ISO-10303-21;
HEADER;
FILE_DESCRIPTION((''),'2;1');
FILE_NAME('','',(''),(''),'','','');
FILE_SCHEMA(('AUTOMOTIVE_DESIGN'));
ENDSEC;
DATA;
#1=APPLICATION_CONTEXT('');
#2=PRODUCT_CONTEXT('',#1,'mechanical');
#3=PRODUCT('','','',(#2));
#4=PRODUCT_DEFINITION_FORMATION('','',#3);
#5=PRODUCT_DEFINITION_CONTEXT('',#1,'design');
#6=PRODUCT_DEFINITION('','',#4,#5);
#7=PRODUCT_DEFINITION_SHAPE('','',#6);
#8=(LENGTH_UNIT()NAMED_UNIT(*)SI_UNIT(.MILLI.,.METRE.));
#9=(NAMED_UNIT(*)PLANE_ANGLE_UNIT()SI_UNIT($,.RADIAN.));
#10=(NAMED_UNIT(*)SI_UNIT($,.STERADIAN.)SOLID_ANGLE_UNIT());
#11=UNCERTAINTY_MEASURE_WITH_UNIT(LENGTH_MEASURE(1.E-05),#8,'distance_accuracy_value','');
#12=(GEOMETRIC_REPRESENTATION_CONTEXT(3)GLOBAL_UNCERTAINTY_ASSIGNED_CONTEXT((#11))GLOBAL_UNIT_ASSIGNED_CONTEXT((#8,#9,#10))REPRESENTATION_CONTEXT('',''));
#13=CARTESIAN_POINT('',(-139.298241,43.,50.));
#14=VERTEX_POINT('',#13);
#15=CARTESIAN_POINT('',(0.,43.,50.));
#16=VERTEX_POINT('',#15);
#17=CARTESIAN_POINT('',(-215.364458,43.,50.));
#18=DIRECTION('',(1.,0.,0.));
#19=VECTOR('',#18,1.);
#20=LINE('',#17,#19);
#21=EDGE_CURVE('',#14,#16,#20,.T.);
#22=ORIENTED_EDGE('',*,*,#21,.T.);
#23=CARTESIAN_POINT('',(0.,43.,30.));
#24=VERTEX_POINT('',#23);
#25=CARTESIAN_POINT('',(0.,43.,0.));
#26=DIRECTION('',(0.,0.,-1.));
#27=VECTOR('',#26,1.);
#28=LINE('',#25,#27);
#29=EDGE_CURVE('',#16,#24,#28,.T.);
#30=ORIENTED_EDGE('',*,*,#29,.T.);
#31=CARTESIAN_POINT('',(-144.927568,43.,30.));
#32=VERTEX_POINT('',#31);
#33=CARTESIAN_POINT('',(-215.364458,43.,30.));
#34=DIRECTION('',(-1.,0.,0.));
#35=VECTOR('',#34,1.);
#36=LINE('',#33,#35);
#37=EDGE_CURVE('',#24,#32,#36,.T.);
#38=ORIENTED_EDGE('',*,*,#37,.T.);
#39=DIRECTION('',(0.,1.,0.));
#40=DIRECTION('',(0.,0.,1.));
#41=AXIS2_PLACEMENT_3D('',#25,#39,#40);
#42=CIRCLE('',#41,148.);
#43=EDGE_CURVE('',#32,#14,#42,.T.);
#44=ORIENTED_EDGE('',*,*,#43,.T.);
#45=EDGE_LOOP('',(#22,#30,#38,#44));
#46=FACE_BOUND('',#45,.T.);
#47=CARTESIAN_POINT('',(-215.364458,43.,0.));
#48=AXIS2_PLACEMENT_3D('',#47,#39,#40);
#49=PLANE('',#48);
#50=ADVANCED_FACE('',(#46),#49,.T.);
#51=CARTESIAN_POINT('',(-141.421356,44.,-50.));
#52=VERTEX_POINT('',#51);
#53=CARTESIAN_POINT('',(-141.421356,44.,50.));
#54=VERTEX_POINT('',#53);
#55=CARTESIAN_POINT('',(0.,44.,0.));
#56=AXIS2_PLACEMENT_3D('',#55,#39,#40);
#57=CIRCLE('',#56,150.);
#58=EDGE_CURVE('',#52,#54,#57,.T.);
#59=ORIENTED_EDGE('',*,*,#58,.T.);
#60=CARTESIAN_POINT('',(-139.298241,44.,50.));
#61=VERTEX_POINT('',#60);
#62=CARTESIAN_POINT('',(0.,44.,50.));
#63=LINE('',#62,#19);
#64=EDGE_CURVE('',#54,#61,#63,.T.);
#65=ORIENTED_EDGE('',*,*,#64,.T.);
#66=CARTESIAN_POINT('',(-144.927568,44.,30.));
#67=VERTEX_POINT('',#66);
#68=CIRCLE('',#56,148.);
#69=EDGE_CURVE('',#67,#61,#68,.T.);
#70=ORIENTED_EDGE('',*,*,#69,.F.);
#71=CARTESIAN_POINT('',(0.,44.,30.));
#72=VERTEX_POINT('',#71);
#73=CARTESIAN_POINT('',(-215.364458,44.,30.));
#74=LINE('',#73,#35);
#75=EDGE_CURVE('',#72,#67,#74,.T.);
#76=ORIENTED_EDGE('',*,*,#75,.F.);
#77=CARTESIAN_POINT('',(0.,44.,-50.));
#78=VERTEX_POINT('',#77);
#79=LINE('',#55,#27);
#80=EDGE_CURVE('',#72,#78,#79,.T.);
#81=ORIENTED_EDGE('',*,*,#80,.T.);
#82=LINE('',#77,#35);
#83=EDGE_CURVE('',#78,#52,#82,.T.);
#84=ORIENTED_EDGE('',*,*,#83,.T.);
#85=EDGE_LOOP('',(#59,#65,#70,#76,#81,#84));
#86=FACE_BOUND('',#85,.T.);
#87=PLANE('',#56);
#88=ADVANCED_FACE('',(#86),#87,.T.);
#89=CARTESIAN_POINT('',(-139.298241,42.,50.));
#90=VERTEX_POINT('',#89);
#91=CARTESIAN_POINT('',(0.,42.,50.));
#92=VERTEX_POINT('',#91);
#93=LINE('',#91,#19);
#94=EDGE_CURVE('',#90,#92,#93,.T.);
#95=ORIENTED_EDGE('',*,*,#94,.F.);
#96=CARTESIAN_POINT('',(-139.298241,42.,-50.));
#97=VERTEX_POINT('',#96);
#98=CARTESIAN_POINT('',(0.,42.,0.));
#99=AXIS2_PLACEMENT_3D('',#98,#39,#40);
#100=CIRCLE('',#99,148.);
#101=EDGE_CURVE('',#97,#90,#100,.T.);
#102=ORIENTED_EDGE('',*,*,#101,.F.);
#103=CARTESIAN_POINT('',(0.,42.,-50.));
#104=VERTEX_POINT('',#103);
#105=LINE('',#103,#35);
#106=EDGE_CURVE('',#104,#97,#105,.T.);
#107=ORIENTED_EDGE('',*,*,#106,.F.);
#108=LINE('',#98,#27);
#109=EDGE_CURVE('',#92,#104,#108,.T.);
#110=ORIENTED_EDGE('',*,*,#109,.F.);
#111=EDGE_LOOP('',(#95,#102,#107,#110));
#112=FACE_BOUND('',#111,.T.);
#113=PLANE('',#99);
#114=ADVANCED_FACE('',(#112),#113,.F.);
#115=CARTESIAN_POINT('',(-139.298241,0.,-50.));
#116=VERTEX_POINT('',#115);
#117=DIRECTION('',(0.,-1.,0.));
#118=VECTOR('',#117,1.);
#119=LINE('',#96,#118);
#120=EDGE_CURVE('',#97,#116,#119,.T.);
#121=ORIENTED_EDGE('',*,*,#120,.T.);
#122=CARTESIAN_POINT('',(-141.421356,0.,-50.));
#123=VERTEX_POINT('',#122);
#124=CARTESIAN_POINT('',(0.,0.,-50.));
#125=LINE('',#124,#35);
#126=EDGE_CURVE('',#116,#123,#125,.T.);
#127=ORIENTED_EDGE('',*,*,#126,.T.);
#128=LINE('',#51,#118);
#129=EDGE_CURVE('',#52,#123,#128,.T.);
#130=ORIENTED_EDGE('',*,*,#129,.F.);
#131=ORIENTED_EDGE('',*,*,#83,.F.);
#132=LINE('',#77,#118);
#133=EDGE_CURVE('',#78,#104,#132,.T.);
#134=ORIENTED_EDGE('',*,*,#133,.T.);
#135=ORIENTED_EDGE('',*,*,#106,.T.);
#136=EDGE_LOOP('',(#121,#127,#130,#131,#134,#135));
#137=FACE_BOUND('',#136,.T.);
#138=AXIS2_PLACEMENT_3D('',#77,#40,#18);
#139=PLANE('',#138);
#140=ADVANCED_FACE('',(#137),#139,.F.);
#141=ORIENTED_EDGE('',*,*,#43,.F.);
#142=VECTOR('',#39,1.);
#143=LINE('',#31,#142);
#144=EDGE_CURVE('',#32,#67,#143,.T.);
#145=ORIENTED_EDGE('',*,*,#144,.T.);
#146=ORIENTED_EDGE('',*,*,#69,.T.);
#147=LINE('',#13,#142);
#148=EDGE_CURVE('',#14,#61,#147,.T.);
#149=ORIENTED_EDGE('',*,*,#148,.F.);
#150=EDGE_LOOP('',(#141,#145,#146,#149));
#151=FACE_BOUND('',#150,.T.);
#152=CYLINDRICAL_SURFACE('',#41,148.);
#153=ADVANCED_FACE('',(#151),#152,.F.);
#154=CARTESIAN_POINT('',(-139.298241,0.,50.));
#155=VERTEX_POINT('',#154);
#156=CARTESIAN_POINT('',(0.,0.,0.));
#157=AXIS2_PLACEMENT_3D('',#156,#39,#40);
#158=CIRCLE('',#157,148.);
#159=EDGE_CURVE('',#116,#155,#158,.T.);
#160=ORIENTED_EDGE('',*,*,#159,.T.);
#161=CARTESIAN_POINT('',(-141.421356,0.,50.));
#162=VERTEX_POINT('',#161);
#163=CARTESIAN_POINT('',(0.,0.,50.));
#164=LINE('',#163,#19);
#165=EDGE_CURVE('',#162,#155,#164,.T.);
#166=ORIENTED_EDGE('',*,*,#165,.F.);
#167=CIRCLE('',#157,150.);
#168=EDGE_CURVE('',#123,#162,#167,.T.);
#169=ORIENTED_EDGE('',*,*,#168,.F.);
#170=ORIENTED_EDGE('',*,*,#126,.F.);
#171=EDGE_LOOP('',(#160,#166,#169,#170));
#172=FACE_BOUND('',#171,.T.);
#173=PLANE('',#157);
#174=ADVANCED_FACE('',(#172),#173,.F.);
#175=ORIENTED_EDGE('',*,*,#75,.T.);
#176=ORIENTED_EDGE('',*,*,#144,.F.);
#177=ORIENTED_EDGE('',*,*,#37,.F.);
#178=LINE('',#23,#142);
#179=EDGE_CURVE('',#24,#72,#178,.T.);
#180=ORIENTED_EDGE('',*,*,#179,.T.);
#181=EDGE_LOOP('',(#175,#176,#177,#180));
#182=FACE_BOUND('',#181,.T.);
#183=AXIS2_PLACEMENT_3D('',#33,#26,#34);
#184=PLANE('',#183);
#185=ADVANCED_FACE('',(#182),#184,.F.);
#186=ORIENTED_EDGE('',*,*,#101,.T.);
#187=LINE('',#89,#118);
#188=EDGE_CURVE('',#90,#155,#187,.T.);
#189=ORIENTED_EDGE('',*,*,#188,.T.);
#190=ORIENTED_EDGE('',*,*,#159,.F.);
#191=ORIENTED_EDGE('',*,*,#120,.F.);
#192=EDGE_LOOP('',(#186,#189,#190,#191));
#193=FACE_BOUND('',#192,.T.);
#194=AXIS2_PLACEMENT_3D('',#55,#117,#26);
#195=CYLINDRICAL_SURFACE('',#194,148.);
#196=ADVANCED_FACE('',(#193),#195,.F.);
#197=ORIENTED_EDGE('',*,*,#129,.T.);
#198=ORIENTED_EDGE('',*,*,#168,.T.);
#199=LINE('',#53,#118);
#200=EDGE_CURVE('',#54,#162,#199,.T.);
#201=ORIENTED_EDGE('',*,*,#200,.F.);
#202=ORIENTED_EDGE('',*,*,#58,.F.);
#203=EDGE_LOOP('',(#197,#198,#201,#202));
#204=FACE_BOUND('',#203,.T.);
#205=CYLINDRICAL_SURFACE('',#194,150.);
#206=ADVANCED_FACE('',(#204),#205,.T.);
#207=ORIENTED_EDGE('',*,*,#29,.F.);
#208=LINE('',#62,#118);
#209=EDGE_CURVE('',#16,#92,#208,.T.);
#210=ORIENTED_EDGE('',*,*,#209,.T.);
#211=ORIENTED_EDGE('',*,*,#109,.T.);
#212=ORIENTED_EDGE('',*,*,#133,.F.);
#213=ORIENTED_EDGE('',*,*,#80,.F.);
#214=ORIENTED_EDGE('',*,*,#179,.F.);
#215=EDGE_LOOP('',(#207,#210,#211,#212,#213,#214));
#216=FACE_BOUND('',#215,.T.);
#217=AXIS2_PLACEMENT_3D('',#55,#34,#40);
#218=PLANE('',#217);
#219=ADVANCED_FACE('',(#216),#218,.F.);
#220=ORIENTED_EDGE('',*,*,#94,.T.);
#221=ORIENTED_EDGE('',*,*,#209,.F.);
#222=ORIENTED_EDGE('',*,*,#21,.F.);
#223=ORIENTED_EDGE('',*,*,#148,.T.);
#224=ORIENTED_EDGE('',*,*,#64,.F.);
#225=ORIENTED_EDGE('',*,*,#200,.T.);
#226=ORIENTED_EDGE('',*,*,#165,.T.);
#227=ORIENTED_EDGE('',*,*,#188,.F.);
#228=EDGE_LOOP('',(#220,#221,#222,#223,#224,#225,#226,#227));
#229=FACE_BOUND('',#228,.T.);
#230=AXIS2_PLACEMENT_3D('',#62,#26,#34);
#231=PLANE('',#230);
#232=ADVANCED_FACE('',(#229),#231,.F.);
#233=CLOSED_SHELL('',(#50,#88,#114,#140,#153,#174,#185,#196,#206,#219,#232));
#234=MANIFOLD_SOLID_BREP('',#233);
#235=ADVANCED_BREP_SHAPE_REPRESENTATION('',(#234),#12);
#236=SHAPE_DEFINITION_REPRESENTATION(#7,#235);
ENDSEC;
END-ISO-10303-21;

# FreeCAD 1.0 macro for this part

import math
import FreeCAD as App
import Part
import Sketcher
from FreeCAD import Vector
Q = App.Units.Quantity


def faces_at(feature, points):
    """Names of the faces that lie closest to the given points."""
    faces = feature.Shape.Faces
    near = lambda p: min(range(len(faces)), key=lambda i: faces[i].distToShape(Part.Vertex(*p))[0])
    return sorted({f"Face{near(p) + 1}" for p in points})

doc = App.newDocument("Part")
body = doc.addObject("PartDesign::Body", "Body")

# Sketch on XZ plane
sketch1 = body.newObject("Sketcher::SketchObject", "Sketch")
sketch1.AttachmentSupport = (doc.getObject("XZ_Plane"), [""])
sketch1.MapMode = "FlatFace"
sketch1.addGeometry([
    Part.LineSegment(Vector(-141, 50, 0), Vector(0, 50, 0)),
    Part.LineSegment(Vector(0, 50, 0), Vector(0, -50, 0)),
    Part.LineSegment(Vector(0, -50, 0), Vector(-141, -50, 0)),
    Part.ArcOfCircle(Part.Circle(Vector(0, 0, 0), Vector(0, 0, 1), 150), math.radians(161), math.radians(199)),
], False)
sketch1.addConstraint([
    Sketcher.Constraint("Coincident", 0, 2, 1, 1),
    Sketcher.Constraint("Coincident", 1, 2, 2, 1),
    Sketcher.Constraint("Coincident", 2, 2, 3, 2),
    Sketcher.Constraint("Coincident", 3, 1, 0, 1),
    Sketcher.Constraint("Horizontal", 0),
    Sketcher.Constraint("Vertical", 1),
    Sketcher.Constraint("Horizontal", 2),
    Sketcher.Constraint("Coincident", 3, 3, -1, 1),
    Sketcher.Constraint("Symmetric", 0, 2, 1, 2, -1, 1),
    Sketcher.Constraint("Radius", 3, Q("150 mm")),
    Sketcher.Constraint("DistanceY", 1, 2, 1, 1, Q("100 mm")),
])
pad1 = body.newObject("PartDesign::Pad", "Pad")
pad1.Profile = sketch1
pad1.Length = 44
pad1.Reversed = True
doc.recompute()

thickness = body.newObject("PartDesign::Thickness", "Thickness")
thickness.Base = (pad1, faces_at(pad1, [
    (-70.711, 22, -50),
    (-75, 0, 0),
    (0, 22, 0),
    (-70.711, 22, 50),
]))
thickness.Value = 2
thickness.Reversed = True
thickness.Join = "Intersection"

# Sketch on XZ plane
sketch2 = body.newObject("Sketcher::SketchObject", "Sketch001")
sketch2.AttachmentSupport = (doc.getObject("XZ_Plane"), [""])
sketch2.MapMode = "FlatFace"
sketch2.AttachmentOffset = App.Placement(Vector(0, 0, -43), App.Rotation())
sketch2.addGeometry([
    Part.ArcOfCircle(Part.Circle(Vector(0, 0, 0), Vector(0, 0, 1), 148), math.radians(160.25), math.radians(168.3)),
    Part.LineSegment(Vector(-139, 50, 0), Vector(0, 50, 0)),
    Part.LineSegment(Vector(0, 50, 0), Vector(0, 30, 0)),
    Part.LineSegment(Vector(0, 30, 0), Vector(-145, 30, 0)),
], False)
sketch2.addConstraint([
    Sketcher.Constraint("Coincident", 0, 1, 1, 1),
    Sketcher.Constraint("Coincident", 1, 2, 2, 1),
    Sketcher.Constraint("Coincident", 2, 2, 3, 1),
    Sketcher.Constraint("Coincident", 3, 2, 0, 2),
    Sketcher.Constraint("Horizontal", 1),
    Sketcher.Constraint("Vertical", 2),
    Sketcher.Constraint("Horizontal", 3),
    Sketcher.Constraint("Coincident", 0, 3, -1, 1),
    Sketcher.Constraint("PointOnObject", 1, 2, -2),
    Sketcher.Constraint("Radius", 0, Q("148 mm")),
    Sketcher.Constraint("DistanceY", 2, 2, 2, 1, Q("20 mm")),
    Sketcher.Constraint("DistanceY", -1, 1, 0, 1, Q("50 mm")),
])
pocket1 = body.newObject("PartDesign::Pocket", "Pocket")
pocket1.Profile = sketch2
pocket1.Length = 1

doc.recompute()
